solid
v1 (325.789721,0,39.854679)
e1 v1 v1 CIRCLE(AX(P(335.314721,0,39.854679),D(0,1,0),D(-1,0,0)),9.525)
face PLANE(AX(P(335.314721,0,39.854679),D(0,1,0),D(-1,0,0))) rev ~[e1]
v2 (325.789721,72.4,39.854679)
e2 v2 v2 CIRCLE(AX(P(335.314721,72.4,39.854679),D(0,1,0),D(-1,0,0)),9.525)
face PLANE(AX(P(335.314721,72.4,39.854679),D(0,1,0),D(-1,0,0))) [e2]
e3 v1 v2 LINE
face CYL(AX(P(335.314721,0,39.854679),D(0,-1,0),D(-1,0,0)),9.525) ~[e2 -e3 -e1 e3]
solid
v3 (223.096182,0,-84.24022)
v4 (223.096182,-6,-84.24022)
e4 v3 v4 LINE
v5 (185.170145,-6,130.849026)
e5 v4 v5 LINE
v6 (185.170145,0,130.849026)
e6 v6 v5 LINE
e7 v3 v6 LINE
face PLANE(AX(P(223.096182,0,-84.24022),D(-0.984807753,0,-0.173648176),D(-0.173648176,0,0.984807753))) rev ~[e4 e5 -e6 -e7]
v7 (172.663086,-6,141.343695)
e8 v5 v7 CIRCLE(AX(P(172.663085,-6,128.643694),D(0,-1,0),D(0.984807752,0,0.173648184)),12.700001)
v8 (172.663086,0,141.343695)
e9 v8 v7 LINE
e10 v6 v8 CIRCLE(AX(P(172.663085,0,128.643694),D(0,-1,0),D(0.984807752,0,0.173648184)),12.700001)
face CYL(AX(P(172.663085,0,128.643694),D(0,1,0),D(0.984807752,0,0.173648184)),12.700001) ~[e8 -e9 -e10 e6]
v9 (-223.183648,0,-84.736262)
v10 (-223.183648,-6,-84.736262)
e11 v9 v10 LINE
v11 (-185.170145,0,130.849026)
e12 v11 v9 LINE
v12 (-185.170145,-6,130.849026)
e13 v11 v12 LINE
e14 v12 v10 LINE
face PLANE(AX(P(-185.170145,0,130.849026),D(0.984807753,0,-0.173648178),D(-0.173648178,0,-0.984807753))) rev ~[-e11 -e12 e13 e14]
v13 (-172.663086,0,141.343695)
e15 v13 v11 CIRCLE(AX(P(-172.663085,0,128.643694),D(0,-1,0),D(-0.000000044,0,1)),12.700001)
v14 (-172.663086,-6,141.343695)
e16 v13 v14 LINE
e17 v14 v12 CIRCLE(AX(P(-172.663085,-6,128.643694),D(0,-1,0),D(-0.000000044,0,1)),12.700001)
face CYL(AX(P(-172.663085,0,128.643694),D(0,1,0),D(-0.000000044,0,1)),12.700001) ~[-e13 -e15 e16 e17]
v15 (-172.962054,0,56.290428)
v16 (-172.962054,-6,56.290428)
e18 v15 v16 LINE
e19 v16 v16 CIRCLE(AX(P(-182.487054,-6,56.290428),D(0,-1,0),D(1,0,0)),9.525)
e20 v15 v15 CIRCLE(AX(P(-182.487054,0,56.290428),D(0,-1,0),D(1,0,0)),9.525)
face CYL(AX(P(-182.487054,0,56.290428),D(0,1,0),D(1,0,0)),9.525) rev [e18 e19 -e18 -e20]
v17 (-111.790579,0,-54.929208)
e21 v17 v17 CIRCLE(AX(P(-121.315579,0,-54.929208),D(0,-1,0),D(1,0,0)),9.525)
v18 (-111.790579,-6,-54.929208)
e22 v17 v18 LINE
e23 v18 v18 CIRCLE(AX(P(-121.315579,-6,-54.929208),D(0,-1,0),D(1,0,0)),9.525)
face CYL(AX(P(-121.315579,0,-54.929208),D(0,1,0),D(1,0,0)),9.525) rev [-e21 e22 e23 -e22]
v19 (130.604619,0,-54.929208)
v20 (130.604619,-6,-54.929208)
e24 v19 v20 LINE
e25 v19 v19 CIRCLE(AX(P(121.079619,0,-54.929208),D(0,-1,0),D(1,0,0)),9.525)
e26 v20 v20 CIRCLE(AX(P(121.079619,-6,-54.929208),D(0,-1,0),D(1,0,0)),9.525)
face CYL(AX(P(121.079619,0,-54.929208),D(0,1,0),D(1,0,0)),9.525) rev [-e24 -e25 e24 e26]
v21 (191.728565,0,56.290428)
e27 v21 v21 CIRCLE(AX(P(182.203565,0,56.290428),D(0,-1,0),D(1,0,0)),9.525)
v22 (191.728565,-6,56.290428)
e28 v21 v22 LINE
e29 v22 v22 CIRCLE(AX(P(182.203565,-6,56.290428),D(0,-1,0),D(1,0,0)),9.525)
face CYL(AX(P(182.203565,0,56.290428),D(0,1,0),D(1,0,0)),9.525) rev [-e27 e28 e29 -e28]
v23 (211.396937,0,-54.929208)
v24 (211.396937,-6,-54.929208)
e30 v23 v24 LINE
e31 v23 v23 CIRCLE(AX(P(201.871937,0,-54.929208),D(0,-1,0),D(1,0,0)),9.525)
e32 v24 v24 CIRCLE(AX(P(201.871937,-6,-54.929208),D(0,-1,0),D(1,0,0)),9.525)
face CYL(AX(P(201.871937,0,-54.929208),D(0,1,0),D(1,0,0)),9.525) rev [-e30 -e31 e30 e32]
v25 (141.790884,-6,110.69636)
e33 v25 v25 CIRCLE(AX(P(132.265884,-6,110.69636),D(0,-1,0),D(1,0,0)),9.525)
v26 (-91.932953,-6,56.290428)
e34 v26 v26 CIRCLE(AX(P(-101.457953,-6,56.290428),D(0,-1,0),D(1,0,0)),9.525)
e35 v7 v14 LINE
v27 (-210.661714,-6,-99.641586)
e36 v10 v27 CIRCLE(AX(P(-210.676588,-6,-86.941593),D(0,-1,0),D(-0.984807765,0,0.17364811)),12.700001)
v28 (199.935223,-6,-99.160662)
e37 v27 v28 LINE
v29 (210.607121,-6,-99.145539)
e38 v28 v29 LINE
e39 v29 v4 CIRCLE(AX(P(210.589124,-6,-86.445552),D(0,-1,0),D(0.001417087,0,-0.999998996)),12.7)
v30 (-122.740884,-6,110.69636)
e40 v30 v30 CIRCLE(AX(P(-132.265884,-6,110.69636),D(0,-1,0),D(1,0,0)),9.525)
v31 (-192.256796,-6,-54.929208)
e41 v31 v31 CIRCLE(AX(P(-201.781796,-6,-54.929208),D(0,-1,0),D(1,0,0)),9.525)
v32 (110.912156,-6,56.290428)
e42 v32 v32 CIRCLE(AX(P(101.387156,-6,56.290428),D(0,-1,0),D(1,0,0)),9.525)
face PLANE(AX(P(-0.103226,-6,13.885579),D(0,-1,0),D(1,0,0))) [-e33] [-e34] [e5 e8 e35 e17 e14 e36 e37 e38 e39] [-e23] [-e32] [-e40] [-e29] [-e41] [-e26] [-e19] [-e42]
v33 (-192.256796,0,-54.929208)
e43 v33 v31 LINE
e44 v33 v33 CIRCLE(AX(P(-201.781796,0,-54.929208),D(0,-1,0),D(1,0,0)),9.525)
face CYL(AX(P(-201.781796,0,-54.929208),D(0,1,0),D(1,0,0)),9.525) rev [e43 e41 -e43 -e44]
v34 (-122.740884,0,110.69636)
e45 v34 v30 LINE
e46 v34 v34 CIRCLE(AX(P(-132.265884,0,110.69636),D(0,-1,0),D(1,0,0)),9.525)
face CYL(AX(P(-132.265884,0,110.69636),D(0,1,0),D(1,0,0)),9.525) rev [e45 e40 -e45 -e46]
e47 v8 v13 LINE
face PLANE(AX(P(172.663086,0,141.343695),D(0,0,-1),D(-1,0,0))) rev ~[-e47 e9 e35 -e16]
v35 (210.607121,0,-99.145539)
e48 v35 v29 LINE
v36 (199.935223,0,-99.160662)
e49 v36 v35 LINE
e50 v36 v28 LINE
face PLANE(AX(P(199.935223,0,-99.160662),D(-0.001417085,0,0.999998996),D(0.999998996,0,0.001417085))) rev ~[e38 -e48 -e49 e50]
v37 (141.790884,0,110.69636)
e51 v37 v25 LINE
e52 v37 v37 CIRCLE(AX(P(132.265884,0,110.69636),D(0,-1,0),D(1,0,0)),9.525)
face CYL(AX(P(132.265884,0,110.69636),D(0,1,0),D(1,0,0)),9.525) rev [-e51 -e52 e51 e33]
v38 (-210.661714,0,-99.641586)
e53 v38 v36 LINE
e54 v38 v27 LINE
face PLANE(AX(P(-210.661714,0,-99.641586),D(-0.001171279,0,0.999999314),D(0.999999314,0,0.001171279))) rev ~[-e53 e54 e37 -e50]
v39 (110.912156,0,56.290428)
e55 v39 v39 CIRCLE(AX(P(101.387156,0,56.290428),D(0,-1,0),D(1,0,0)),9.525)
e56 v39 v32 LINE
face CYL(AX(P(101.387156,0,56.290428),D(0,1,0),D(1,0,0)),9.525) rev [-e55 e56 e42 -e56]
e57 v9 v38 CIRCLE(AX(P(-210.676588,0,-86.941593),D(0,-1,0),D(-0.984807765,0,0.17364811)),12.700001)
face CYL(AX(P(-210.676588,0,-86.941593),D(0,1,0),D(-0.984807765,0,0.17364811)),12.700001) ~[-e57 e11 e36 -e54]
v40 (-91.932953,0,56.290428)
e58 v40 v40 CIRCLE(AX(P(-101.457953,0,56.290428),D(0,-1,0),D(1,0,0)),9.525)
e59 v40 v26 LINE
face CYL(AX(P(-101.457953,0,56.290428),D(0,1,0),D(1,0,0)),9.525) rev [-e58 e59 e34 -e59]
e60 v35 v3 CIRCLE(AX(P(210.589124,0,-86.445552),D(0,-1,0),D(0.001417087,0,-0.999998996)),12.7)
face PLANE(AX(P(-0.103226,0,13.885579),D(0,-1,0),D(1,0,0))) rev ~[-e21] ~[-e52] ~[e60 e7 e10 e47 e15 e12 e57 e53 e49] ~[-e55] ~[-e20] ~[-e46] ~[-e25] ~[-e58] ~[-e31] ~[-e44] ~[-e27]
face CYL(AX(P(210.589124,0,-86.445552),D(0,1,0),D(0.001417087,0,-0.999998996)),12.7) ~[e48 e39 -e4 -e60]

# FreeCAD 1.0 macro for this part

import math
import FreeCAD as App
import Part
import Sketcher

V = App.Vector
Q = App.Units.Quantity

doc = App.newDocument("Part")
params = doc.addObject("Spreadsheet::Sheet", "Params")
for row, (alias, value) in enumerate([
    ("sketch1_radius", "0.5 in"),
    ("sketch1_diameter", "0.75 in"),
    ("pad1_length", "6 mm"),
    ("sketch2_diameter", "0.75 in"),
    ("pad2_length", "72.4 mm"),
], start=1):
    params.set(f"A{row}", alias)
    params.set(f"B{row}", "=" + value)
    params.setAlias(f"B{row}", alias)

body = doc.addObject("PartDesign::Body", "Body")

sketch1 = body.newObject("Sketcher::SketchObject", "Sketch")
sketch1.AttachmentSupport = (doc.getObject("XZ_Plane"), [""])
sketch1.MapMode = "FlatFace"
sketch1.addGeometry(Part.ArcOfCircle(Part.Circle(V(173, 129, 0), V(0, 0, 1), 13), math.radians(10), math.radians(90)), False)
sketch1.addGeometry(Part.LineSegment(V(173, 141, 0), V(-173, 141, 0)), False)
sketch1.addGeometry(Part.ArcOfCircle(Part.Circle(V(-173, 129, 0), V(0, 0, 1), 13), math.radians(90), math.radians(170)), False)
sketch1.addGeometry(Part.LineSegment(V(-185, 131, 0), V(-223, -85, 0)), False)
sketch1.addGeometry(Part.ArcOfCircle(Part.Circle(V(-211, -87, 0), V(0, 0, 1), 13), math.radians(170), math.radians(270)), False)
sketch1.addGeometry(Part.LineSegment(V(-211, -100, 0), V(200, -99, 0)), False)
sketch1.addGeometry(Part.LineSegment(V(200, -99, 0), V(211, -99, 0)), False)
sketch1.addGeometry(Part.ArcOfCircle(Part.Circle(V(211, -86, 0), V(0, 0, 1), 13), math.radians(-90), math.radians(10)), False)
sketch1.addGeometry(Part.LineSegment(V(223, -84, 0), V(185, 131, 0)), False)
sketch1.addGeometry(Part.Circle(V(-202, -55, 0), V(0, 0, 1), 10), False)
sketch1.addGeometry(Part.Circle(V(-121, -55, 0), V(0, 0, 1), 10), False)
sketch1.addGeometry(Part.Circle(V(121, -55, 0), V(0, 0, 1), 10), False)
sketch1.addGeometry(Part.Circle(V(202, -55, 0), V(0, 0, 1), 10), False)
sketch1.addGeometry(Part.Circle(V(-182, 56, 0), V(0, 0, 1), 10), False)
sketch1.addGeometry(Part.Circle(V(-101, 56, 0), V(0, 0, 1), 10), False)
sketch1.addGeometry(Part.Circle(V(-132, 111, 0), V(0, 0, 1), 10), False)
sketch1.addGeometry(Part.Circle(V(101, 56, 0), V(0, 0, 1), 10), False)
sketch1.addGeometry(Part.Circle(V(182, 56, 0), V(0, 0, 1), 10), False)
sketch1.addGeometry(Part.Circle(V(132, 111, 0), V(0, 0, 1), 10), False)
sketch1.addConstraint(Sketcher.Constraint("Tangent", 0, 2, 1, 1))
sketch1.addConstraint(Sketcher.Constraint("Tangent", 1, 2, 2, 1))
sketch1.addConstraint(Sketcher.Constraint("Tangent", 2, 2, 3, 1))
sketch1.addConstraint(Sketcher.Constraint("Tangent", 3, 2, 4, 1))
sketch1.addConstraint(Sketcher.Constraint("Tangent", 4, 2, 5, 1))
sketch1.addConstraint(Sketcher.Constraint("Coincident", 5, 2, 6, 1))
sketch1.addConstraint(Sketcher.Constraint("Tangent", 6, 2, 7, 1))
sketch1.addConstraint(Sketcher.Constraint("Tangent", 7, 2, 8, 1))
sketch1.addConstraint(Sketcher.Constraint("Tangent", 8, 2, 0, 1))
sketch1.addConstraint(Sketcher.Constraint("Horizontal", 1))
sketch1.addConstraint(Sketcher.Constraint("Equal", 0, 2))
sketch1.addConstraint(Sketcher.Constraint("Equal", 2, 4))
sketch1.addConstraint(Sketcher.Constraint("Equal", 4, 7))
sketch1.addConstraint(Sketcher.Constraint("Equal", 9, 10))
sketch1.addConstraint(Sketcher.Constraint("Equal", 10, 11))
sketch1.addConstraint(Sketcher.Constraint("Equal", 11, 12))
sketch1.addConstraint(Sketcher.Constraint("Equal", 12, 13))
sketch1.addConstraint(Sketcher.Constraint("Equal", 13, 14))
sketch1.addConstraint(Sketcher.Constraint("Equal", 14, 15))
sketch1.addConstraint(Sketcher.Constraint("Equal", 15, 16))
sketch1.addConstraint(Sketcher.Constraint("Equal", 16, 17))
sketch1.addConstraint(Sketcher.Constraint("Equal", 17, 18))
sketch1.addConstraint(Sketcher.Constraint("Symmetric", 15, 3, 18, 3, -2))
sketch1.addConstraint(Sketcher.Constraint("Symmetric", 2, 2, 8, 2, -2))
sketch1.addConstraint(Sketcher.Constraint("Horizontal", 9, 3, 10, 3))
sketch1.addConstraint(Sketcher.Constraint("Horizontal", 10, 3, 11, 3))
sketch1.addConstraint(Sketcher.Constraint("Horizontal", 11, 3, 12, 3))
sketch1.addConstraint(Sketcher.Constraint("Horizontal", 13, 3, 14, 3))
sketch1.addConstraint(Sketcher.Constraint("Horizontal", 14, 3, 16, 3))
sketch1.addConstraint(Sketcher.Constraint("Horizontal", 16, 3, 17, 3))
sketch1.addConstraint(Sketcher.Constraint("Radius", 0, Q("0.5 in")))
sketch1.addConstraint(Sketcher.Constraint("Diameter", 9, Q("0.75 in")))
sketch1.addConstraint(Sketcher.Constraint("Angle", 3, Q("-100 deg")))
sketch1.addConstraint(Sketcher.Constraint("DistanceX", 11, 3, 12, 3, Q("3.1807999 in")))
sketch1.addConstraint(Sketcher.Constraint("DistanceX", 12, 3, 7, 2, Q("0.8356002 in")))
sketch1.addConstraint(Sketcher.Constraint("DistanceX", 1, 2, 1, 1, Q("345.326172 mm")))
sketch1.addConstraint(Sketcher.Constraint("DistanceY", 9, 3, 2, 3, Q("183.572902 mm")))
sketch1.addConstraint(Sketcher.Constraint("DistanceX", 10, 3, 11, 3, Q("242.395198 mm")))
sketch1.addConstraint(Sketcher.Constraint("DistanceX", 13, 3, 14, 3, Q("81.029101 mm")))
sketch1.addConstraint(Sketcher.Constraint("DistanceX", 2, 3, 15, 3, Q("40.397201 mm")))
sketch1.addConstraint(Sketcher.Constraint("DistanceX", 5, 2, 7, 3, Q("10.653901 mm")))
sketch1.addConstraint(Sketcher.Constraint("DistanceY", 17, 3, 8, 2, Q("74.558598 mm")))
sketch1.addConstraint(Sketcher.Constraint("Distance", 3, Q("218.911039 mm")))
sketch1.addConstraint(Sketcher.Constraint("Distance", 5, Q("410.597219 mm")))
sketch1.addConstraint(Sketcher.Constraint("Distance", 6, Q("10.671909 mm")))
sketch1.addConstraint(Sketcher.Constraint("DistanceY", 9, 3, -1, 1, Q("54.929208 mm")))
sketch1.addConstraint(Sketcher.Constraint("DistanceY", -1, 1, 15, 3, Q("110.69636 mm")))
sketch1.addConstraint(Sketcher.Constraint("DistanceX", 4, 3, 9, 3, Q("8.894792 mm")))
sketch1.addConstraint(Sketcher.Constraint("DistanceX", 13, 3, 2, 3, Q("9.823969 mm")))
sketch1.addConstraint(Sketcher.Constraint("DistanceX", 16, 3, 0, 3, Q("71.275929 mm")))
sketch1.addConstraint(Sketcher.Constraint("DistanceX", 0, 3, 17, 3, Q("9.54048 mm")))
sketch1.setExpression("Constraints[30]", "Params.sketch1_radius")
sketch1.setExpression("Constraints[31]", "Params.sketch1_diameter")
pad1 = body.newObject("PartDesign::Pad", "Pad")
pad1.Profile = sketch1
pad1.setExpression("Length", "Params.pad1_length")
body2 = doc.addObject("PartDesign::Body", "Body001")

sketch2 = body2.newObject("Sketcher::SketchObject", "Sketch001")
sketch2.AttachmentSupport = (doc.getObject("XZ_Plane001"), [""])
sketch2.MapMode = "FlatFace"
sketch2.addGeometry(Part.Circle(V(335, 40, 0), V(0, 0, 1), 10), False)
sketch2.addConstraint(Sketcher.Constraint("Diameter", 0, Q("0.75 in")))
sketch2.addConstraint(Sketcher.Constraint("DistanceX", -1, 1, 0, 3, Q("335.314721 mm")))
sketch2.addConstraint(Sketcher.Constraint("DistanceY", -1, 1, 0, 3, Q("39.854679 mm")))
sketch2.setExpression("Constraints[0]", "Params.sketch2_diameter")
pad2 = body2.newObject("PartDesign::Pad", "Pad001")
pad2.Profile = sketch2
pad2.setExpression("Length", "Params.pad2_length")
pad2.Reversed = True

doc.recompute()
